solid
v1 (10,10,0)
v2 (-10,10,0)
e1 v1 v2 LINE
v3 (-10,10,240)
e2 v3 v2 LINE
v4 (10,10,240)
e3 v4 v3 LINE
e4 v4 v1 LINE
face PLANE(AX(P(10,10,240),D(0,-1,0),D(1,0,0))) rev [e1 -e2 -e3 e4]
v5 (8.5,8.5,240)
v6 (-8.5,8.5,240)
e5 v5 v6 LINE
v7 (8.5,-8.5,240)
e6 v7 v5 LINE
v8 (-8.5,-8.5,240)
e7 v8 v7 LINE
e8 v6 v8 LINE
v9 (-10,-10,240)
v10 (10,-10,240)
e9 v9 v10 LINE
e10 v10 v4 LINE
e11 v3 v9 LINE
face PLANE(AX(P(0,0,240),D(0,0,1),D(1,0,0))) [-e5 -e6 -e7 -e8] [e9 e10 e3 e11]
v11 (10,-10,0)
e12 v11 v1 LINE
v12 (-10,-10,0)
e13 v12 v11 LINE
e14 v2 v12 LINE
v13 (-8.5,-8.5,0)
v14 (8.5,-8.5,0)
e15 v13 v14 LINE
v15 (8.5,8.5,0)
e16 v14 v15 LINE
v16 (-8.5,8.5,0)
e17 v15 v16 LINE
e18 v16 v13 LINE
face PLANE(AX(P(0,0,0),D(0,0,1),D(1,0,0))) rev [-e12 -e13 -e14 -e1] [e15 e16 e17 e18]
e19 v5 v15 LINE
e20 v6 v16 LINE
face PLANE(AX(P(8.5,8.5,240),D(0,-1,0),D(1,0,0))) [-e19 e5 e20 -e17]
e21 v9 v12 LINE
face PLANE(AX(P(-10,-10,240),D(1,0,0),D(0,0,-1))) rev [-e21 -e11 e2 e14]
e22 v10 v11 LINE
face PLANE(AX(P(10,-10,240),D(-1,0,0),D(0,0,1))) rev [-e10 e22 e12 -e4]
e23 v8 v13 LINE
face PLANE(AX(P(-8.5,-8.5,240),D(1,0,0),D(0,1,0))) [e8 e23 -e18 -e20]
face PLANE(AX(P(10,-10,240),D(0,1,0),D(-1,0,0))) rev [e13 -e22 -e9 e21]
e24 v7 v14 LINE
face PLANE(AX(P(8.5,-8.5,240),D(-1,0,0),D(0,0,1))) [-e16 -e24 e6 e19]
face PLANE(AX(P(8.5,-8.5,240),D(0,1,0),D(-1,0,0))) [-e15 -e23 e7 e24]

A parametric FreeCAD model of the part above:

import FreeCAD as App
import Part
import Sketcher

V = App.Vector
Q = App.Units.Quantity


def add_polygon(sketch, points):
    """Adds a closed chain of lines whose ends are joined by coincident constraints."""
    first, n = sketch.GeometryCount, len(points)
    for a, b in zip(points, points[1:] + points[:1]):
        sketch.addGeometry(Part.LineSegment(App.Vector(*a, 0), App.Vector(*b, 0)), False)
    for i in range(n):
        sketch.addConstraint(Sketcher.Constraint("Coincident", first + i, 2, first + (i + 1) % n, 1))

doc = App.newDocument("Part")
body = doc.addObject("PartDesign::Body", "Body")

# Sketch on XY plane
sketch1 = body.newObject("Sketcher::SketchObject", "Sketch")
sketch1.AttachmentSupport = (doc.getObject("XY_Plane"), [""])
sketch1.MapMode = "FlatFace"
add_polygon(sketch1, [(-10, 10), (-10, -10), (10, -10), (10, 10)])  # lines 0-3
add_polygon(sketch1, [(8, -8), (-8, -8), (-8, 8), (8, 8)])  # lines 4-7
sketch1.addConstraint(Sketcher.Constraint("Vertical", 0))
sketch1.addConstraint(Sketcher.Constraint("Horizontal", 1))
sketch1.addConstraint(Sketcher.Constraint("Vertical", 2))
sketch1.addConstraint(Sketcher.Constraint("Horizontal", 3))
sketch1.addConstraint(Sketcher.Constraint("Horizontal", 4))
sketch1.addConstraint(Sketcher.Constraint("Vertical", 5))
sketch1.addConstraint(Sketcher.Constraint("Horizontal", 6))
sketch1.addConstraint(Sketcher.Constraint("Vertical", 7))
sketch1.addConstraint(Sketcher.Constraint("Symmetric", 0, 2, 2, 2, -1, 1))
sketch1.addConstraint(Sketcher.Constraint("Symmetric", 4, 2, 6, 2, -1, 1))
sketch1.addConstraint(Sketcher.Constraint("Equal", 3, 0))
sketch1.addConstraint(Sketcher.Constraint("Equal", 6, 5))
sketch1.addConstraint(Sketcher.Constraint("DistanceX", 1, 1, 1, 2, Q("20 mm")))
sketch1.addConstraint(Sketcher.Constraint("DistanceX", 4, 2, 4, 1, Q("17 mm")))
pad1 = body.newObject("PartDesign::Pad", "Pad")
pad1.Profile = sketch1
pad1.Length = 240

doc.recompute()
